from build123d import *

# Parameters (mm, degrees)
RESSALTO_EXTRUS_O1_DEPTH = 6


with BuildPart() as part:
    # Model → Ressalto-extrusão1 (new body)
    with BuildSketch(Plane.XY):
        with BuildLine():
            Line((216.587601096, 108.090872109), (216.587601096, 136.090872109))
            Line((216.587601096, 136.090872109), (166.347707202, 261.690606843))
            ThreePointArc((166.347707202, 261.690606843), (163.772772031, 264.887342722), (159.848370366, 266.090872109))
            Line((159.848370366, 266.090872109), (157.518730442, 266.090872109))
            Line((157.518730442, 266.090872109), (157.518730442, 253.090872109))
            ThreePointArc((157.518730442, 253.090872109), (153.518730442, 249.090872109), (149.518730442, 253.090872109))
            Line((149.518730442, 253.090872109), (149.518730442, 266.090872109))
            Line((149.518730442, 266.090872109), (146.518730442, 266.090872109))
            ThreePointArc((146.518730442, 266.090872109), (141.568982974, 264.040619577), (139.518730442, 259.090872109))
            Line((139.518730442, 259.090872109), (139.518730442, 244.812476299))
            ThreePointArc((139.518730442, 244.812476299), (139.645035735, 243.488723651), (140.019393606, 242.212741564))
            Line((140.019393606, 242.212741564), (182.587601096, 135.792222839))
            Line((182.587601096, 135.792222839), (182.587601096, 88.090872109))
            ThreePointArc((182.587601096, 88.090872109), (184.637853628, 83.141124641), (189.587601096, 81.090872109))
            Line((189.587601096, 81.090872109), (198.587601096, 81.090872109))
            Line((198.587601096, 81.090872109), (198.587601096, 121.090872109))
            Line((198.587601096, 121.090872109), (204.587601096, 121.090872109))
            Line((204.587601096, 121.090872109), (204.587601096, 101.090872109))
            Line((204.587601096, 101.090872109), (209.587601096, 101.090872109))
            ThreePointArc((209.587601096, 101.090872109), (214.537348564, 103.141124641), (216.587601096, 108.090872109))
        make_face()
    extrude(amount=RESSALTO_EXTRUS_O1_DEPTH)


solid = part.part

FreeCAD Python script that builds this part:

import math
import FreeCAD as App
import Part
import Sketcher
from FreeCAD import Vector
Q = App.Units.Quantity

doc = App.newDocument("Part")
body = doc.addObject("PartDesign::Body", "Body")

# Sketch on XY plane
sketch1 = body.newObject("Sketcher::SketchObject", "Sketch")
sketch1.AttachmentSupport = (doc.getObject("XY_Plane"), [""])
sketch1.MapMode = "FlatFace"
sketch1.addGeometry(Part.LineSegment(Vector(216.6, 108.1, 0), Vector(216.6, 136.1, 0)), False)
sketch1.addGeometry(Part.LineSegment(Vector(216.6, 136.1, 0), Vector(166.3, 261.7, 0)), False)
sketch1.addGeometry(Part.ArcOfCircle(Part.Circle(Vector(159.8, 259.1, 0), Vector(0, 0, 1), 7), math.radians(22), math.radians(90)), False)
sketch1.addGeometry(Part.LineSegment(Vector(159.8, 266.1, 0), Vector(157.5, 266.1, 0)), False)
sketch1.addGeometry(Part.LineSegment(Vector(157.5, 266.1, 0), Vector(157.5, 253.1, 0)), False)
sketch1.addGeometry(Part.ArcOfCircle(Part.Circle(Vector(153.5, 253.1, 0), Vector(0, 0, 1), 4), math.radians(180), math.radians(360)), False)
sketch1.addGeometry(Part.LineSegment(Vector(149.5, 253.1, 0), Vector(149.5, 266.1, 0)), False)
sketch1.addGeometry(Part.LineSegment(Vector(149.5, 266.1, 0), Vector(146.5, 266.1, 0)), False)
sketch1.addGeometry(Part.ArcOfCircle(Part.Circle(Vector(146.5, 259.1, 0), Vector(0, 0, 1), 7), math.radians(90), math.radians(180)), False)
sketch1.addGeometry(Part.LineSegment(Vector(139.5, 259.1, 0), Vector(139.5, 244.8, 0)), False)
sketch1.addGeometry(Part.ArcOfCircle(Part.Circle(Vector(146.5, 244.8, 0), Vector(0, 0, 1), 7), math.radians(-180), math.radians(-158)), False)
sketch1.addGeometry(Part.LineSegment(Vector(140, 242.2, 0), Vector(182.6, 135.8, 0)), False)
sketch1.addGeometry(Part.LineSegment(Vector(182.6, 135.8, 0), Vector(182.6, 88.1, 0)), False)
sketch1.addGeometry(Part.ArcOfCircle(Part.Circle(Vector(189.6, 88.1, 0), Vector(0, 0, 1), 7), math.radians(-180), math.radians(-90)), False)
sketch1.addGeometry(Part.LineSegment(Vector(189.6, 81.1, 0), Vector(198.6, 81.1, 0)), False)
sketch1.addGeometry(Part.LineSegment(Vector(198.6, 81.1, 0), Vector(198.6, 121.1, 0)), False)
sketch1.addGeometry(Part.LineSegment(Vector(198.6, 121.1, 0), Vector(204.6, 121.1, 0)), False)
sketch1.addGeometry(Part.LineSegment(Vector(204.6, 121.1, 0), Vector(204.6, 101.1, 0)), False)
sketch1.addGeometry(Part.LineSegment(Vector(204.6, 101.1, 0), Vector(209.6, 101.1, 0)), False)
sketch1.addGeometry(Part.ArcOfCircle(Part.Circle(Vector(209.6, 108.1, 0), Vector(0, 0, 1), 7), math.radians(-90), math.radians(0)), False)
sketch1.addConstraint(Sketcher.Constraint("Coincident", 0, 2, 1, 1))
sketch1.addConstraint(Sketcher.Constraint("Tangent", 1, 2, 2, 1))
sketch1.addConstraint(Sketcher.Constraint("Tangent", 2, 2, 3, 1))
sketch1.addConstraint(Sketcher.Constraint("Coincident", 3, 2, 4, 1))
sketch1.addConstraint(Sketcher.Constraint("Tangent", 4, 2, 5, 2))
sketch1.addConstraint(Sketcher.Constraint("Tangent", 5, 1, 6, 1))
sketch1.addConstraint(Sketcher.Constraint("Coincident", 6, 2, 7, 1))
sketch1.addConstraint(Sketcher.Constraint("Tangent", 7, 2, 8, 1))
sketch1.addConstraint(Sketcher.Constraint("Tangent", 8, 2, 9, 1))
sketch1.addConstraint(Sketcher.Constraint("Tangent", 9, 2, 10, 1))
sketch1.addConstraint(Sketcher.Constraint("Tangent", 10, 2, 11, 1))
sketch1.addConstraint(Sketcher.Constraint("Coincident", 11, 2, 12, 1))
sketch1.addConstraint(Sketcher.Constraint("Tangent", 12, 2, 13, 1))
sketch1.addConstraint(Sketcher.Constraint("Tangent", 13, 2, 14, 1))
sketch1.addConstraint(Sketcher.Constraint("Coincident", 14, 2, 15, 1))
sketch1.addConstraint(Sketcher.Constraint("Coincident", 15, 2, 16, 1))
sketch1.addConstraint(Sketcher.Constraint("Coincident", 16, 2, 17, 1))
sketch1.addConstraint(Sketcher.Constraint("Coincident", 17, 2, 18, 1))
sketch1.addConstraint(Sketcher.Constraint("Tangent", 18, 2, 19, 1))
sketch1.addConstraint(Sketcher.Constraint("Tangent", 19, 2, 0, 1))
sketch1.addConstraint(Sketcher.Constraint("Vertical", 0))
sketch1.addConstraint(Sketcher.Constraint("Horizontal", 3))
sketch1.addConstraint(Sketcher.Constraint("Vertical", 4))
sketch1.addConstraint(Sketcher.Constraint("Vertical", 6))
sketch1.addConstraint(Sketcher.Constraint("Horizontal", 7))
sketch1.addConstraint(Sketcher.Constraint("Vertical", 9))
sketch1.addConstraint(Sketcher.Constraint("Vertical", 12))
sketch1.addConstraint(Sketcher.Constraint("Horizontal", 14))
sketch1.addConstraint(Sketcher.Constraint("Vertical", 15))
sketch1.addConstraint(Sketcher.Constraint("Horizontal", 16))
sketch1.addConstraint(Sketcher.Constraint("Vertical", 17))
sketch1.addConstraint(Sketcher.Constraint("Horizontal", 18))
sketch1.addConstraint(Sketcher.Constraint("Equal", 2, 8))
sketch1.addConstraint(Sketcher.Constraint("Equal", 8, 10))
sketch1.addConstraint(Sketcher.Constraint("Equal", 10, 13))
sketch1.addConstraint(Sketcher.Constraint("Equal", 13, 19))
sketch1.addConstraint(Sketcher.Constraint("Parallel", 1, 11))
sketch1.addConstraint(Sketcher.Constraint("Horizontal", 2, 3, 8, 3))
sketch1.addConstraint(Sketcher.Constraint("Radius", 2, Q("7 mm")))
sketch1.addConstraint(Sketcher.Constraint("Radius", 5, Q("4 mm")))
sketch1.addConstraint(Sketcher.Constraint("DistanceX", 7, 2, 7, 1, Q("3 mm")))
sketch1.addConstraint(Sketcher.Constraint("DistanceX", 14, 1, 14, 2, Q("9 mm")))
sketch1.addConstraint(Sketcher.Constraint("DistanceX", 16, 1, 16, 2, Q("6 mm")))
sketch1.addConstraint(Sketcher.Constraint("DistanceX", 18, 1, 18, 2, Q("5 mm")))
sketch1.addConstraint(Sketcher.Constraint("DistanceY", 0, 1, 0, 2, Q("28 mm")))
sketch1.addConstraint(Sketcher.Constraint("DistanceY", 4, 2, 4, 1, Q("13 mm")))
sketch1.addConstraint(Sketcher.Constraint("DistanceY", 15, 1, 15, 2, Q("40 mm")))
sketch1.addConstraint(Sketcher.Constraint("DistanceY", 17, 2, 17, 1, Q("20 mm")))
sketch1.addConstraint(Sketcher.Constraint("DistanceY", 13, 3, 5, 3, Q("165 mm")))
sketch1.addConstraint(Sketcher.Constraint("DistanceX", 3, 2, 3, 1, Q("2.32964 mm")))
sketch1.addConstraint(Sketcher.Constraint("DistanceY", 12, 2, 12, 1, Q("47.701351 mm")))
sketch1.addConstraint(Sketcher.Constraint("DistanceX", -1, 1, 13, 3, Q("189.587601 mm")))
sketch1.addConstraint(Sketcher.Constraint("DistanceY", 9, 2, 9, 1, Q("14.278396 mm")))
sketch1.addConstraint(Sketcher.Constraint("DistanceY", -1, 1, 10, 2, Q("242.212742 mm")))
pad1 = body.newObject("PartDesign::Pad", "Pad")
pad1.Profile = sketch1
pad1.Length = 6

doc.recompute()
